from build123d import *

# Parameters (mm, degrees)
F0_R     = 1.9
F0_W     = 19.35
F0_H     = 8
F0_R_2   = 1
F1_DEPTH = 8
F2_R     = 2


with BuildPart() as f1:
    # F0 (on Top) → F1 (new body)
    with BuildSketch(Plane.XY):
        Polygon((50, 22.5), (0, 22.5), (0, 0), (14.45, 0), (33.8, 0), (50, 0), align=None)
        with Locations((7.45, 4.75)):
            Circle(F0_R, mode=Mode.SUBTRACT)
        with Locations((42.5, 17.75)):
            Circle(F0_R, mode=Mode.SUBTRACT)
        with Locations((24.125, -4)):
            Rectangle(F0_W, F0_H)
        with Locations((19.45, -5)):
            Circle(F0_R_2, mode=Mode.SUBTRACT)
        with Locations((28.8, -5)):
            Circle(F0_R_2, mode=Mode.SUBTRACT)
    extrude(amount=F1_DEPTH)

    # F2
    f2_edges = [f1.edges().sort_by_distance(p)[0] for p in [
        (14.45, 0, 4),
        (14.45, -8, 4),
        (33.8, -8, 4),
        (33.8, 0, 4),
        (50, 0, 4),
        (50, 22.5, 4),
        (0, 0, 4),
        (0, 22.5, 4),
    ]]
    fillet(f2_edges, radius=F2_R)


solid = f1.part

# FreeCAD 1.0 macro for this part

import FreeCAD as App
import Part
import Sketcher

V = App.Vector
Q = App.Units.Quantity


def edges_at(feature, points):
    """Names of the edges that pass closest to the given points."""
    edges = feature.Shape.Edges
    near = lambda p: min(range(len(edges)), key=lambda i: edges[i].distToShape(Part.Vertex(*p))[0])
    return sorted({f"Edge{near(p) + 1}" for p in points})

doc = App.newDocument("Part")
body = doc.addObject("PartDesign::Body", "Body")

# Sketch on XY plane
sketch1 = body.newObject("Sketcher::SketchObject", "Sketch")
sketch1.AttachmentSupport = (doc.getObject("XY_Plane"), [""])
sketch1.MapMode = "FlatFace"
sketch1.addGeometry(Part.LineSegment(V(50, 22.5, 0), V(0, 22.5, 0)), False)
sketch1.addGeometry(Part.LineSegment(V(0, 22.5, 0), V(0, 0, 0)), False)
sketch1.addGeometry(Part.LineSegment(V(0, 0, 0), V(14.4, 0, 0)), False)
sketch1.addGeometry(Part.LineSegment(V(14.4, 0, 0), V(14.4, -8, 0)), False)
sketch1.addGeometry(Part.LineSegment(V(14.4, -8, 0), V(33.8, -8, 0)), False)
sketch1.addGeometry(Part.LineSegment(V(33.8, -8, 0), V(33.8, 0, 0)), False)
sketch1.addGeometry(Part.LineSegment(V(33.8, 0, 0), V(50, 0, 0)), False)
sketch1.addGeometry(Part.LineSegment(V(50, 0, 0), V(50, 22.5, 0)), False)
sketch1.addGeometry(Part.Circle(V(19.4, -5, 0), V(0, 0, 1), 1), False)
sketch1.addGeometry(Part.Circle(V(7.5, 4.8, 0), V(0, 0, 1), 1.9), False)
sketch1.addGeometry(Part.Circle(V(28.8, -5, 0), V(0, 0, 1), 1), False)
sketch1.addGeometry(Part.Circle(V(42.5, 17.8, 0), V(0, 0, 1), 1.9), False)
sketch1.addConstraint(Sketcher.Constraint("Coincident", 0, 2, 1, 1))
sketch1.addConstraint(Sketcher.Constraint("Coincident", 1, 2, 2, 1))
sketch1.addConstraint(Sketcher.Constraint("Coincident", 2, 2, 3, 1))
sketch1.addConstraint(Sketcher.Constraint("Coincident", 3, 2, 4, 1))
sketch1.addConstraint(Sketcher.Constraint("Coincident", 4, 2, 5, 1))
sketch1.addConstraint(Sketcher.Constraint("Coincident", 5, 2, 6, 1))
sketch1.addConstraint(Sketcher.Constraint("Coincident", 6, 2, 7, 1))
sketch1.addConstraint(Sketcher.Constraint("Coincident", 7, 2, 0, 1))
sketch1.addConstraint(Sketcher.Constraint("Horizontal", 0))
sketch1.addConstraint(Sketcher.Constraint("Vertical", 1))
sketch1.addConstraint(Sketcher.Constraint("Horizontal", 2))
sketch1.addConstraint(Sketcher.Constraint("Vertical", 3))
sketch1.addConstraint(Sketcher.Constraint("Horizontal", 4))
sketch1.addConstraint(Sketcher.Constraint("Vertical", 5))
sketch1.addConstraint(Sketcher.Constraint("Horizontal", 6))
sketch1.addConstraint(Sketcher.Constraint("Vertical", 7))
sketch1.addConstraint(Sketcher.Constraint("Coincident", 1, 2, -1, 1))
sketch1.addConstraint(Sketcher.Constraint("Equal", 8, 10))
sketch1.addConstraint(Sketcher.Constraint("Equal", 9, 11))
sketch1.addConstraint(Sketcher.Constraint("PointOnObject", 5, 2, -1))
sketch1.addConstraint(Sketcher.Constraint("Horizontal", 8, 3, 10, 3))
sketch1.addConstraint(Sketcher.Constraint("Diameter", 8, Q("2 mm")))
sketch1.addConstraint(Sketcher.Constraint("Diameter", 9, Q("3.8 mm")))
sketch1.addConstraint(Sketcher.Constraint("DistanceX", 0, 2, 0, 1, Q("50 mm")))
sketch1.addConstraint(Sketcher.Constraint("DistanceY", 3, 2, 3, 1, Q("8 mm")))
sketch1.addConstraint(Sketcher.Constraint("DistanceX", 6, 1, 6, 2, Q("16.2 mm")))
sketch1.addConstraint(Sketcher.Constraint("DistanceY", 1, 2, 1, 1, Q("22.5 mm")))
sketch1.addConstraint(Sketcher.Constraint("DistanceY", 8, 3, -1, 1, Q("5 mm")))
sketch1.addConstraint(Sketcher.Constraint("DistanceX", 9, 3, 8, 3, Q("12 mm")))
sketch1.addConstraint(Sketcher.Constraint("DistanceY", 9, 3, 11, 3, Q("13 mm")))
sketch1.addConstraint(Sketcher.Constraint("DistanceX", 2, 2, 8, 3, Q("5 mm")))
sketch1.addConstraint(Sketcher.Constraint("DistanceX", 10, 3, 4, 2, Q("5 mm")))
sketch1.addConstraint(Sketcher.Constraint("DistanceX", 2, 1, 2, 2, Q("14.45 mm")))
sketch1.addConstraint(Sketcher.Constraint("DistanceX", -1, 1, 11, 3, Q("42.5 mm")))
sketch1.addConstraint(Sketcher.Constraint("DistanceY", -1, 1, 9, 3, Q("4.75 mm")))
pad1 = body.newObject("PartDesign::Pad", "Pad")
pad1.Profile = sketch1
pad1.Length = 8
doc.recompute()

fillet = body.newObject("PartDesign::Fillet", "Fillet")
fillet.Base = (pad1, edges_at(pad1, [
    (14.45, 0, 4),
    (14.45, -8, 4),
    (33.8, -8, 4),
    (33.8, 0, 4),
    (50, 0, 4),
    (50, 22.5, 4),
    (0, 0, 4),
    (0, 22.5, 4),
]))
fillet.Radius = 2

doc.recompute()
